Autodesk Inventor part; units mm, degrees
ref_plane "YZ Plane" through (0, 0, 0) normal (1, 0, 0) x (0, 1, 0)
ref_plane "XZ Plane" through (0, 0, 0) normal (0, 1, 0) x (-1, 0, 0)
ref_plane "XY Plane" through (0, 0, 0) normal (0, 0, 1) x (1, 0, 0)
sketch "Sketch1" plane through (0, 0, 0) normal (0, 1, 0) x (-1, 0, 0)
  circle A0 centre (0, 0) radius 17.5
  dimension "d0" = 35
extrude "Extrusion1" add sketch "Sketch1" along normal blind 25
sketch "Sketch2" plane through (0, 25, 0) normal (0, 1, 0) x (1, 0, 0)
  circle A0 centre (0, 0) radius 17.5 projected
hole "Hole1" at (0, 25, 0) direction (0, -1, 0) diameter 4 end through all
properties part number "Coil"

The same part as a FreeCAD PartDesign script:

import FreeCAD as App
import Part
import Sketcher
from FreeCAD import Vector
Q = App.Units.Quantity

doc = App.newDocument("Part")
body = doc.addObject("PartDesign::Body", "Body")

sketch1 = doc.addObject("Sketcher::SketchObject", "Sketch")
body.addObject(sketch1)
sketch1.AttachmentSupport = (doc.XZ_Plane, [""])
sketch1.MapMode = "FlatFace"
sketch1.addGeometry(Part.Circle(Vector(0, 0, 0), Vector(0, 0, 1), 18), False)
sketch1.addConstraint([
    Sketcher.Constraint("Coincident", 0, 3, -1, 1),
    Sketcher.Constraint("Diameter", 0, Q("35 mm")),
])
pad1 = doc.addObject("PartDesign::Pad", "Pad")
body.addObject(pad1)
pad1.Profile = sketch1
pad1.Length = 25
pad1.Reversed = True

sketch2 = doc.addObject("Sketcher::SketchObject", "Sketch001")
body.addObject(sketch2)
sketch2.AttachmentSupport = (doc.XZ_Plane, [""])
sketch2.MapMode = "FlatFace"
sketch2.AttachmentOffset = App.Placement(Vector(0, 0, -25), App.Rotation())
sketch2.addGeometry(Part.Circle(Vector(0, 0, 0), Vector(0, 0, 1), 2), False)
sketch2.addConstraint([
    Sketcher.Constraint("Coincident", 0, 3, -1, 1),
    Sketcher.Constraint("Diameter", 0, Q("4 mm")),
])
doc.recompute()
hole = doc.addObject("PartDesign::Hole", "Hole")
body.addObject(hole)
hole.Profile = sketch2
hole.ThreadType = "None"
hole.Diameter = 4
hole.DepthType = "ThroughAll"
hole.Reversed = True

doc.recompute()
